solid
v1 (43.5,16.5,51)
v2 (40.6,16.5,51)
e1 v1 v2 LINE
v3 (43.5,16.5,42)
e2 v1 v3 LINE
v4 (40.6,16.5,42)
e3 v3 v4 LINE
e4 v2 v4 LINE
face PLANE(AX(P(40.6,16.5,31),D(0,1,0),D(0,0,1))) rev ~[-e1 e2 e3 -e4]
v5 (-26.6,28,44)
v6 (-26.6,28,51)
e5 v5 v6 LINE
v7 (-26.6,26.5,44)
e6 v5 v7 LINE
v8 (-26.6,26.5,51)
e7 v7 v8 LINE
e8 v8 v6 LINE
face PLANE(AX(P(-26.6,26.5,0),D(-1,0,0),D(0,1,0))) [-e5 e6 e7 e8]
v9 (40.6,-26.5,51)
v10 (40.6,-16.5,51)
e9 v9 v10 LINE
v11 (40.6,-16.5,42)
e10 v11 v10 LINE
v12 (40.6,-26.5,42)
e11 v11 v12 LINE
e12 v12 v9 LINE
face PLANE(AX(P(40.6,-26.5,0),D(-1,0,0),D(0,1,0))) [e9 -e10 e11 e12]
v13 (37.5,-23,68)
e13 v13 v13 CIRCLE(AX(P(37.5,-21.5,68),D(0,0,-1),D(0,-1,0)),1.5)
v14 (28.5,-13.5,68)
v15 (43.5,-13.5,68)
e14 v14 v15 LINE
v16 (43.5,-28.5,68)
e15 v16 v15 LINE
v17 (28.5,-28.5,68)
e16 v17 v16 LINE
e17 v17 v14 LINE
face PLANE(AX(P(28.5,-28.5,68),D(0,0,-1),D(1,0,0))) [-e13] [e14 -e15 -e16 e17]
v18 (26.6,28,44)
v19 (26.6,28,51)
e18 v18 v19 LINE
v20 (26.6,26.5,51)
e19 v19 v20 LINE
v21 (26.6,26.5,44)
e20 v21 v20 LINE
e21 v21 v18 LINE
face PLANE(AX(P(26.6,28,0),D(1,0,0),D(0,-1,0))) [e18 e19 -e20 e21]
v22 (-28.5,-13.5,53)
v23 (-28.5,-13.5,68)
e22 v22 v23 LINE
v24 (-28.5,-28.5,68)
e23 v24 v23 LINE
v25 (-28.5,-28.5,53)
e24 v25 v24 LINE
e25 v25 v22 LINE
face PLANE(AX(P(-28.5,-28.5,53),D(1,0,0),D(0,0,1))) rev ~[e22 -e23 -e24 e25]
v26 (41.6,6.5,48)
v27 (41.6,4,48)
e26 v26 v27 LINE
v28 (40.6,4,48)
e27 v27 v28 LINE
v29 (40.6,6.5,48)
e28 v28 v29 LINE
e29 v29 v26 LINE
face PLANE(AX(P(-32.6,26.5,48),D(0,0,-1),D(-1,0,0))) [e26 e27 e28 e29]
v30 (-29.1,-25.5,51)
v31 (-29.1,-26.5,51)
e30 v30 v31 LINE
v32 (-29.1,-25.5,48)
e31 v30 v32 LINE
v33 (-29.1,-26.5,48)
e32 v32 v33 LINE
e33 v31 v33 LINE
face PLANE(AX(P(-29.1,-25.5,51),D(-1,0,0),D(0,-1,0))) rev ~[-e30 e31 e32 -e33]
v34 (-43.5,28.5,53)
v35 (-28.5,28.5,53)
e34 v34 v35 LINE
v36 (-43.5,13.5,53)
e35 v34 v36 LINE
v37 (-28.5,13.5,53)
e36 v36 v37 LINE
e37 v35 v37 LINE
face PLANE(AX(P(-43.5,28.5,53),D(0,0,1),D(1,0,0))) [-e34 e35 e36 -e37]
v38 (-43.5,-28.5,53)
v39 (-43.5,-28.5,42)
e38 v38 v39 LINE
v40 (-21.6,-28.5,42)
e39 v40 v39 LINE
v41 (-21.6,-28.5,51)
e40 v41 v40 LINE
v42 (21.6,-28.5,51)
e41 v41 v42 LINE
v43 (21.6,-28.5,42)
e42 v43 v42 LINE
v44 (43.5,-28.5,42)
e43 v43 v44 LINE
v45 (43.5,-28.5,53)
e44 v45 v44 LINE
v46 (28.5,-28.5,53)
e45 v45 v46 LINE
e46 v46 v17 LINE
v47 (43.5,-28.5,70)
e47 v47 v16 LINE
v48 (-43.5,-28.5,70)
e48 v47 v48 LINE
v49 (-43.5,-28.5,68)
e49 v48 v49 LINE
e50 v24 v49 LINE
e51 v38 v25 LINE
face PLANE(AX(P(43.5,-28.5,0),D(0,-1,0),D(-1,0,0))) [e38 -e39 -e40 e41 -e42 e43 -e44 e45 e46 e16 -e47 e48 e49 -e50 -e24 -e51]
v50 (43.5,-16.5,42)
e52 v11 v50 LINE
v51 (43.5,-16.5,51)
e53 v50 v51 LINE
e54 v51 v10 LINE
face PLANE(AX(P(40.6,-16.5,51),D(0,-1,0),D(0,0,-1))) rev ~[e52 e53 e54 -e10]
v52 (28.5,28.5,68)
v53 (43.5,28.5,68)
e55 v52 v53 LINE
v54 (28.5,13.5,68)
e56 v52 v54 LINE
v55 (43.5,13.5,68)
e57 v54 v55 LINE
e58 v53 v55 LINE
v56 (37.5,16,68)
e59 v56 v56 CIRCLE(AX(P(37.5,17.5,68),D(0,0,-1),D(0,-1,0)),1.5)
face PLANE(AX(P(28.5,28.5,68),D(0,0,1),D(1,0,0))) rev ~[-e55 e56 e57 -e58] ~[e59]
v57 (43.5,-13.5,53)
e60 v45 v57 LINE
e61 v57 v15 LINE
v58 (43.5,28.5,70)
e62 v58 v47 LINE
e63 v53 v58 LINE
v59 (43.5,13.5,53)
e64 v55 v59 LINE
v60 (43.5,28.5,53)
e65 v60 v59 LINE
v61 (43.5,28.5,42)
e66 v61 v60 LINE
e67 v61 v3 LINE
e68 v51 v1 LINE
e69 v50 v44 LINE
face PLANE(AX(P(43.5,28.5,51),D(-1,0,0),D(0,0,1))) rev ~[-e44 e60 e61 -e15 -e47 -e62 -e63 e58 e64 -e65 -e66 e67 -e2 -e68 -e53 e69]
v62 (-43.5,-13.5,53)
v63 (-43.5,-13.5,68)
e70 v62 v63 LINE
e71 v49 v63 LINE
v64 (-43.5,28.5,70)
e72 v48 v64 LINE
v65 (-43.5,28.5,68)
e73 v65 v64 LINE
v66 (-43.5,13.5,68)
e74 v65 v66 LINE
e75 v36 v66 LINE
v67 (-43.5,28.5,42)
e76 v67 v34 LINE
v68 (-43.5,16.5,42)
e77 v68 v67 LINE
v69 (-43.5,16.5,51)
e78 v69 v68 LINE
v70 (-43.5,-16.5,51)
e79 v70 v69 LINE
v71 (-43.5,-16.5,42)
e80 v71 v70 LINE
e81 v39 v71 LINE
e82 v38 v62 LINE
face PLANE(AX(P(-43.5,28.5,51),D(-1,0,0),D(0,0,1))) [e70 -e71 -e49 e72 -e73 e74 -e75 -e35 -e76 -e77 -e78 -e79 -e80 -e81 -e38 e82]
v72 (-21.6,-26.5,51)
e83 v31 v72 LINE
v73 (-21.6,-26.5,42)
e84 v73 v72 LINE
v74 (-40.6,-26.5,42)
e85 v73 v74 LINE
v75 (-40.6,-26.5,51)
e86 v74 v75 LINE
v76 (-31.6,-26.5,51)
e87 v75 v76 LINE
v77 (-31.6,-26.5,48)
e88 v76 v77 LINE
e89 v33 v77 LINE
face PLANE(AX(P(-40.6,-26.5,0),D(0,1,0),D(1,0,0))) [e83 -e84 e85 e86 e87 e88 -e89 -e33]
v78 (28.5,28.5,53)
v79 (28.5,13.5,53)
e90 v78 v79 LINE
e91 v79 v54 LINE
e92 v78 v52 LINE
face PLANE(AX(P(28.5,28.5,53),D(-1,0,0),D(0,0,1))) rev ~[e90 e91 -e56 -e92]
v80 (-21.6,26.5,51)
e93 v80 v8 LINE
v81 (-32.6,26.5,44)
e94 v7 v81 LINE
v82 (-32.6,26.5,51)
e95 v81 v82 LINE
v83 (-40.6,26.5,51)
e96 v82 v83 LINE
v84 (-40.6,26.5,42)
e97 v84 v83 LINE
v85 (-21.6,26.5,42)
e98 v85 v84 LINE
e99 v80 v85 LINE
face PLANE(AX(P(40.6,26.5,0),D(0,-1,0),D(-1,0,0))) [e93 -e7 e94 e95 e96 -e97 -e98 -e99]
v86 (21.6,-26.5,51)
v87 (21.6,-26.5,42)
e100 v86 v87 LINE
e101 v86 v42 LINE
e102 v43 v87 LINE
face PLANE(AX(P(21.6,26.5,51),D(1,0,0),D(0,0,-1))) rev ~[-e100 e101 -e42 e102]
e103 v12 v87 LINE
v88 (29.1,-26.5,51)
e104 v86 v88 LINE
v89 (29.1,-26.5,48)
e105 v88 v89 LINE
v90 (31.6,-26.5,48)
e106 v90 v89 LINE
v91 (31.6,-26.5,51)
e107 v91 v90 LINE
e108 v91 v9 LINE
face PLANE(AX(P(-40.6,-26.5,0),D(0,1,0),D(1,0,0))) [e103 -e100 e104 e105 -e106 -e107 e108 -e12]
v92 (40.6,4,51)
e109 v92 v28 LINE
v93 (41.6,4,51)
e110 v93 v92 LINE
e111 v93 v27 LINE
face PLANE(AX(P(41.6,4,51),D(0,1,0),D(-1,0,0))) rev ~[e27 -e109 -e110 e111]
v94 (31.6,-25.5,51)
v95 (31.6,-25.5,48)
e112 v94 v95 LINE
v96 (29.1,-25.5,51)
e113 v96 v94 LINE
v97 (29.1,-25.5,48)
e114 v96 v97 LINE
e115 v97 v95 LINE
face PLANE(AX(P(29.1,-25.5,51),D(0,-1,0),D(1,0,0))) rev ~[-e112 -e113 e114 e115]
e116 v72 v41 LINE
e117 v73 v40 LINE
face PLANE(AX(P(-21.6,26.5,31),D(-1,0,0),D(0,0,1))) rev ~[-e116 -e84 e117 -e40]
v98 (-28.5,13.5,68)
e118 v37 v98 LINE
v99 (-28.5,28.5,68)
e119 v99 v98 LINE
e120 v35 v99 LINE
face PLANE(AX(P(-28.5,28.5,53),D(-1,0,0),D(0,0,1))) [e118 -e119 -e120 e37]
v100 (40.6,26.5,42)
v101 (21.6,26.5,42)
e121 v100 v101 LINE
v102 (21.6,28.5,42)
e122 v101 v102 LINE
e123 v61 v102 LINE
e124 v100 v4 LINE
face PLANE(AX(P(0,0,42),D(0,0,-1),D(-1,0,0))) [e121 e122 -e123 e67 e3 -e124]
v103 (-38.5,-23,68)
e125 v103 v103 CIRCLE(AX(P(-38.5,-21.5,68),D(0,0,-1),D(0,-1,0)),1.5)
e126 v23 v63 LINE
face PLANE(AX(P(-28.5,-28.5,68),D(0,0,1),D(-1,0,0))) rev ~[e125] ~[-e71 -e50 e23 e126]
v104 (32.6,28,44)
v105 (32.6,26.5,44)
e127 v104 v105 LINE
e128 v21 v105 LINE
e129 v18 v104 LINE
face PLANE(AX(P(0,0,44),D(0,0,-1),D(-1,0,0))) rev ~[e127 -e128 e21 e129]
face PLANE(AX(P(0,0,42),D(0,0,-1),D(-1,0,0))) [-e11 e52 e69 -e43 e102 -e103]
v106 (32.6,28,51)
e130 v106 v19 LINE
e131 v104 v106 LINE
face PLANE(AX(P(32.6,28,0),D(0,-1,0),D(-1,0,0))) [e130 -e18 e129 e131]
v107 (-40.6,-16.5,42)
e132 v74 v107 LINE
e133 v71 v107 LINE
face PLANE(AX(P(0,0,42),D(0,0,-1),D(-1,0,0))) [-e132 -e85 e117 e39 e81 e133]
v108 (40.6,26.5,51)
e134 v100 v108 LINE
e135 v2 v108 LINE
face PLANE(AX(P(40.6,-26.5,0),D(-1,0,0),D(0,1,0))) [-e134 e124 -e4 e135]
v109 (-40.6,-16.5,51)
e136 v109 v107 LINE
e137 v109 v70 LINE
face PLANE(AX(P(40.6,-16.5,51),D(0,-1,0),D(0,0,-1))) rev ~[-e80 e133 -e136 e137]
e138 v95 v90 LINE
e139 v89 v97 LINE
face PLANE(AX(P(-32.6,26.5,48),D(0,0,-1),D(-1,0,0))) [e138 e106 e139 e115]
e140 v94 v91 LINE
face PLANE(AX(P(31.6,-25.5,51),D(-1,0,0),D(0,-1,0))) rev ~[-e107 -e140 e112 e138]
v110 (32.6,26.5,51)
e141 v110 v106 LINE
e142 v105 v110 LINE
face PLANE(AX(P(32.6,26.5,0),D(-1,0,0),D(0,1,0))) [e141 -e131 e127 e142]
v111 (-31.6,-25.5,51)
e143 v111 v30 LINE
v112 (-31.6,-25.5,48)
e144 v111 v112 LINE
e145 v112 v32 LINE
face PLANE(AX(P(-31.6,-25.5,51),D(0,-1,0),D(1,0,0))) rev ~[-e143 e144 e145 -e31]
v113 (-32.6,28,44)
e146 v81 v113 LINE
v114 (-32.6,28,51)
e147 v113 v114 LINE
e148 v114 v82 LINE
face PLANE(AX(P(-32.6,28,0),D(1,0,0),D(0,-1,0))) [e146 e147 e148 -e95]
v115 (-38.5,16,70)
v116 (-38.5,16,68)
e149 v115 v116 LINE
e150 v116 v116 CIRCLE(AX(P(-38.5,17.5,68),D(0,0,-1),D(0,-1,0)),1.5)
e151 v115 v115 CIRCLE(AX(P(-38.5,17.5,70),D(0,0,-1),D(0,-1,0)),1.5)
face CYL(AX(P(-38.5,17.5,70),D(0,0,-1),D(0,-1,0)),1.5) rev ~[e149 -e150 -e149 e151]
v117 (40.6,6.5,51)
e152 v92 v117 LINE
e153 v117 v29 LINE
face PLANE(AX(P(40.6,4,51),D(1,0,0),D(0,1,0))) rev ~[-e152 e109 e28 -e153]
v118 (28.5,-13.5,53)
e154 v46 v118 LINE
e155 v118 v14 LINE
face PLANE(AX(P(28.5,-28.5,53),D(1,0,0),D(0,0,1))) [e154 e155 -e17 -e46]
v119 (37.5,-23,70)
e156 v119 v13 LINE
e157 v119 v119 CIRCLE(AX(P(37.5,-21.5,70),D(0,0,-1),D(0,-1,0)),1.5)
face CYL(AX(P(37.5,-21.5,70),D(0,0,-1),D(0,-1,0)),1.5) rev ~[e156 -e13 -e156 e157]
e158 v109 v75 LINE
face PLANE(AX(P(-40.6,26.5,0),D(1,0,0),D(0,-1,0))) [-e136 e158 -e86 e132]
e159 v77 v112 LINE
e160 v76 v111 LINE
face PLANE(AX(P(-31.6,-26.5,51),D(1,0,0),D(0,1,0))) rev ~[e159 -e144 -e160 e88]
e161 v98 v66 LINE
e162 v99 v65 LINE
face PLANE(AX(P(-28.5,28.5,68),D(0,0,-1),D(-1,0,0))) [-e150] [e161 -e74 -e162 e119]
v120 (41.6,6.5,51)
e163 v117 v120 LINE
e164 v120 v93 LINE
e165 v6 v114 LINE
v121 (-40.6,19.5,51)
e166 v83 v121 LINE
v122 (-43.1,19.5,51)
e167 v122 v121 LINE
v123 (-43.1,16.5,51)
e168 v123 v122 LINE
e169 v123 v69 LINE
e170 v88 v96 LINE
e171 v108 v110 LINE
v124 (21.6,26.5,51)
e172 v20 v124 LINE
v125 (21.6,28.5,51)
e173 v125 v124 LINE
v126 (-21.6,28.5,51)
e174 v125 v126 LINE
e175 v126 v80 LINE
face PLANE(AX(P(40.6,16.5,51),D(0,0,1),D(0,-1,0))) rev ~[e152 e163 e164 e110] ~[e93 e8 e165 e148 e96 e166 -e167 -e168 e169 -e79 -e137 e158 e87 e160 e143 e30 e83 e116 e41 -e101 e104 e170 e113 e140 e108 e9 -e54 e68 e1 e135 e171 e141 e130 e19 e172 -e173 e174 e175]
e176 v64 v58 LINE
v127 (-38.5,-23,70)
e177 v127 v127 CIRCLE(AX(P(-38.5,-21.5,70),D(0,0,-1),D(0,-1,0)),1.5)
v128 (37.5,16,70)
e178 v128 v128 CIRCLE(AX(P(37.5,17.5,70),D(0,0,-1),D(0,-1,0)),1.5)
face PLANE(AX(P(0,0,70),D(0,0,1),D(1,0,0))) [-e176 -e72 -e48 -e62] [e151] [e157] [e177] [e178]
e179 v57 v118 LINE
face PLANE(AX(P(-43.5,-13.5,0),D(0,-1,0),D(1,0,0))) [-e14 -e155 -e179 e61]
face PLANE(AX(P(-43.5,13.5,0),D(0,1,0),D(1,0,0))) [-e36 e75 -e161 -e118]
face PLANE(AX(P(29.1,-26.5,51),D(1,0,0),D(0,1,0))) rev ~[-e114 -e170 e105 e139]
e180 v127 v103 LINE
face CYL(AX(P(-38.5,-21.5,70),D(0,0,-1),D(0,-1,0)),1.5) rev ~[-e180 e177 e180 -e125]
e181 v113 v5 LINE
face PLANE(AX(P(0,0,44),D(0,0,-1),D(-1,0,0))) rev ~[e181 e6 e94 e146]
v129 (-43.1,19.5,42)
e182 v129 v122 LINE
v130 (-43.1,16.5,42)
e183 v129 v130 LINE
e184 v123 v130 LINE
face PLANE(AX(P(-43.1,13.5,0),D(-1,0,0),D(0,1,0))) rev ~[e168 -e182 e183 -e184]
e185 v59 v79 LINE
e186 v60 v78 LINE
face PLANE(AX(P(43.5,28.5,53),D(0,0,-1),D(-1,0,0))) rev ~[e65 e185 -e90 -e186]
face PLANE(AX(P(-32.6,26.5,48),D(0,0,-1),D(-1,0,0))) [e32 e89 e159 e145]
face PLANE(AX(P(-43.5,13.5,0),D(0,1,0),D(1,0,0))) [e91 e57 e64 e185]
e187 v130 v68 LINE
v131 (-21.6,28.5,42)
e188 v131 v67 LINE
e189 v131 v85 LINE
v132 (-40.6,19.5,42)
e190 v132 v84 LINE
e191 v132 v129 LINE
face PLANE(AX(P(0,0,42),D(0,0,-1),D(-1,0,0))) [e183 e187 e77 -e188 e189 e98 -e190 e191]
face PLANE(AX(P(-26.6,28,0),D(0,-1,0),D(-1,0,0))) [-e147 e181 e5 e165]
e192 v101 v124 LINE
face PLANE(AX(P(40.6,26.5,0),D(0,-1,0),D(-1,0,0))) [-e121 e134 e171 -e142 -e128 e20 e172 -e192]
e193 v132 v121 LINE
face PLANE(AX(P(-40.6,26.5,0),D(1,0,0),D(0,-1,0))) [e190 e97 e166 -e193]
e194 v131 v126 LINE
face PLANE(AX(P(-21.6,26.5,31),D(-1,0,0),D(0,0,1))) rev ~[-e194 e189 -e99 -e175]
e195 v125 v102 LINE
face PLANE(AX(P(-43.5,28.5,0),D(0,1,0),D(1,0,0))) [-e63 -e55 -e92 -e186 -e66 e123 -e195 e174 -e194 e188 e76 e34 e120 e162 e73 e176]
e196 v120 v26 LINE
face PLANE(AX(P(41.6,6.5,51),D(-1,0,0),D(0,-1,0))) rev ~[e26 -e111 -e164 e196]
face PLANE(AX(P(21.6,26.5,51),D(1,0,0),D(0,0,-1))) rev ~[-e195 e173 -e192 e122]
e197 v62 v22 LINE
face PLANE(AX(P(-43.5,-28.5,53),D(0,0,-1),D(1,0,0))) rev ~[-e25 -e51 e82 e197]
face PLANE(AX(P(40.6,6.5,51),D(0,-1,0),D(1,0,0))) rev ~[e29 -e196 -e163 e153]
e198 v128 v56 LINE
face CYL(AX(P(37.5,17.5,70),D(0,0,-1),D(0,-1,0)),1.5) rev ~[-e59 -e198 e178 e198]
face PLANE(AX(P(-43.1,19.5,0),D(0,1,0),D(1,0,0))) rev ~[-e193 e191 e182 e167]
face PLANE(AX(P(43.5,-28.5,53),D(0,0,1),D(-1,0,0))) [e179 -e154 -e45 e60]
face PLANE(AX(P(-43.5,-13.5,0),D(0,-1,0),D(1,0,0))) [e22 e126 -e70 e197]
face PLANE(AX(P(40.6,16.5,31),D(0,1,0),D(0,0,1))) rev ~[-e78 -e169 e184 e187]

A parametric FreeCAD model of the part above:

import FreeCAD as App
import Part
import Sketcher
from FreeCAD import Vector
Q = App.Units.Quantity

doc = App.newDocument("Part")
body = doc.addObject("PartDesign::Body", "Body")

sketch1 = body.newObject("Sketcher::SketchObject", "Sketch")
sketch1.AttachmentSupport = (doc.getObject("XY_Plane"), [""])
sketch1.MapMode = "FlatFace"
sketch1.addGeometry(Part.LineSegment(Vector(-44, -28, 0), Vector(44, -28, 0)), False)
sketch1.addGeometry(Part.LineSegment(Vector(44, -28, 0), Vector(44, 28, 0)), False)
sketch1.addGeometry(Part.LineSegment(Vector(44, 28, 0), Vector(-44, 28, 0)), False)
sketch1.addGeometry(Part.LineSegment(Vector(-44, 28, 0), Vector(-44, -28, 0)), False)
sketch1.addConstraint(Sketcher.Constraint("Coincident", 0, 2, 1, 1))
sketch1.addConstraint(Sketcher.Constraint("Coincident", 1, 2, 2, 1))
sketch1.addConstraint(Sketcher.Constraint("Coincident", 2, 2, 3, 1))
sketch1.addConstraint(Sketcher.Constraint("Coincident", 3, 2, 0, 1))
sketch1.addConstraint(Sketcher.Constraint("Horizontal", 0))
sketch1.addConstraint(Sketcher.Constraint("Vertical", 1))
sketch1.addConstraint(Sketcher.Constraint("Horizontal", 2))
sketch1.addConstraint(Sketcher.Constraint("Vertical", 3))
sketch1.addConstraint(Sketcher.Constraint("Symmetric", 0, 2, 2, 2, -1, 1))
sketch1.addConstraint(Sketcher.Constraint("DistanceX", 0, 1, 0, 2, Q("87 mm")))
sketch1.addConstraint(Sketcher.Constraint("DistanceY", 1, 1, 1, 2, Q("57 mm")))
pad1 = body.newObject("PartDesign::Pad", "Pad")
pad1.Profile = sketch1
pad1.Length = 70

sketch2 = body.newObject("Sketcher::SketchObject", "Sketch001")
sketch2.AttachmentSupport = (doc.getObject("XY_Plane"), [""])
sketch2.MapMode = "FlatFace"
sketch2.addGeometry(Part.LineSegment(Vector(41, -26, 0), Vector(-41, -26, 0)), False)
sketch2.addGeometry(Part.LineSegment(Vector(-41, -26, 0), Vector(-41, 26, 0)), False)
sketch2.addGeometry(Part.LineSegment(Vector(-41, 26, 0), Vector(41, 26, 0)), False)
sketch2.addGeometry(Part.LineSegment(Vector(41, 26, 0), Vector(41, -26, 0)), False)
sketch2.addConstraint(Sketcher.Constraint("Coincident", 0, 2, 1, 1))
sketch2.addConstraint(Sketcher.Constraint("Coincident", 1, 2, 2, 1))
sketch2.addConstraint(Sketcher.Constraint("Coincident", 2, 2, 3, 1))
sketch2.addConstraint(Sketcher.Constraint("Coincident", 3, 2, 0, 1))
sketch2.addConstraint(Sketcher.Constraint("Horizontal", 0))
sketch2.addConstraint(Sketcher.Constraint("Vertical", 1))
sketch2.addConstraint(Sketcher.Constraint("Horizontal", 2))
sketch2.addConstraint(Sketcher.Constraint("Vertical", 3))
sketch2.addConstraint(Sketcher.Constraint("Symmetric", 0, 2, 2, 2, -1, 1))
sketch2.addConstraint(Sketcher.Constraint("DistanceY", 1, 1, 1, 2, Q("53 mm")))
sketch2.addConstraint(Sketcher.Constraint("DistanceX", 0, 2, 0, 1, Q("81.2 mm")))
pocket1 = body.newObject("PartDesign::Pocket", "Pocket")
pocket1.Profile = sketch2
pocket1.Length = 56
pocket1.Reversed = True

sketch3 = body.newObject("Sketcher::SketchObject", "Sketch002")
sketch3.AttachmentSupport = (doc.getObject("XZ_Plane"), [""])
sketch3.MapMode = "FlatFace"
sketch3.AttachmentOffset = App.Placement(Vector(0, 0, -28.5), App.Rotation())
sketch3.addGeometry(Part.LineSegment(Vector(43.5, 51, 0), Vector(-43.5, 51, 0)), False)
sketch3.addGeometry(Part.LineSegment(Vector(-43.5, 51, 0), Vector(-43.5, 55, 0)), False)
sketch3.addGeometry(Part.LineSegment(Vector(-43.5, 55, 0), Vector(43.5, 55, 0)), False)
sketch3.addGeometry(Part.LineSegment(Vector(43.5, 55, 0), Vector(43.5, 51, 0)), False)
sketch3.addConstraint(Sketcher.Constraint("Coincident", 0, 2, 1, 1))
sketch3.addConstraint(Sketcher.Constraint("Coincident", 1, 2, 2, 1))
sketch3.addConstraint(Sketcher.Constraint("Coincident", 2, 2, 3, 1))
sketch3.addConstraint(Sketcher.Constraint("Coincident", 3, 2, 0, 1))
sketch3.addConstraint(Sketcher.Constraint("Horizontal", 0))
sketch3.addConstraint(Sketcher.Constraint("Vertical", 1))
sketch3.addConstraint(Sketcher.Constraint("Horizontal", 2))
sketch3.addConstraint(Sketcher.Constraint("Vertical", 3))
sketch3.addConstraint(Sketcher.Constraint("DistanceY", 1, 1, 1, 2, Q("4 mm")))
sketch3.addConstraint(Sketcher.Constraint("DistanceX", 0, 2, 0, 1, Q("87 mm")))
sketch3.addConstraint(Sketcher.Constraint("DistanceY", -1, 1, 0, 2, Q("51 mm")))
sketch3.addConstraint(Sketcher.Constraint("DistanceX", 0, 2, -1, 1, Q("43.5 mm")))
pad2 = body.newObject("PartDesign::Pad", "Pad001")
pad2.Profile = sketch3
pad2.Length = 55

sketch4 = body.newObject("Sketcher::SketchObject", "Sketch003")
sketch4.AttachmentSupport = (doc.getObject("XY_Plane"), [""])
sketch4.MapMode = "FlatFace"
sketch4.addGeometry(Part.LineSegment(Vector(32.6, 26.5, 0), Vector(26.6, 26.5, 0)), False)
sketch4.addGeometry(Part.LineSegment(Vector(26.6, 26.5, 0), Vector(26.6, 28, 0)), False)
sketch4.addGeometry(Part.LineSegment(Vector(26.6, 28, 0), Vector(32.6, 28, 0)), False)
sketch4.addGeometry(Part.LineSegment(Vector(32.6, 28, 0), Vector(32.6, 26.5, 0)), False)
sketch4.addGeometry(Part.LineSegment(Vector(-26.6, 26.5, 0), Vector(-32.6, 26.5, 0)), False)
sketch4.addGeometry(Part.LineSegment(Vector(-32.6, 26.5, 0), Vector(-32.6, 28, 0)), False)
sketch4.addGeometry(Part.LineSegment(Vector(-32.6, 28, 0), Vector(-26.6, 28, 0)), False)
sketch4.addGeometry(Part.LineSegment(Vector(-26.6, 28, 0), Vector(-26.6, 26.5, 0)), False)
sketch4.addGeometry(Part.LineSegment(Vector(-40.6, 19.5, 0), Vector(-40.6, 13.5, 0)), False)
sketch4.addGeometry(Part.LineSegment(Vector(-40.6, 13.5, 0), Vector(-43.1, 13.5, 0)), False)
sketch4.addGeometry(Part.LineSegment(Vector(-43.1, 13.5, 0), Vector(-43.1, 19.5, 0)), False)
sketch4.addGeometry(Part.LineSegment(Vector(-43.1, 19.5, 0), Vector(-40.6, 19.5, 0)), False)
sketch4.addConstraint(Sketcher.Constraint("Coincident", 0, 2, 1, 1))
sketch4.addConstraint(Sketcher.Constraint("Coincident", 1, 2, 2, 1))
sketch4.addConstraint(Sketcher.Constraint("Coincident", 2, 2, 3, 1))
sketch4.addConstraint(Sketcher.Constraint("Coincident", 3, 2, 0, 1))
sketch4.addConstraint(Sketcher.Constraint("Coincident", 4, 2, 5, 1))
sketch4.addConstraint(Sketcher.Constraint("Coincident", 5, 2, 6, 1))
sketch4.addConstraint(Sketcher.Constraint("Coincident", 6, 2, 7, 1))
sketch4.addConstraint(Sketcher.Constraint("Coincident", 7, 2, 4, 1))
sketch4.addConstraint(Sketcher.Constraint("Coincident", 8, 2, 9, 1))
sketch4.addConstraint(Sketcher.Constraint("Coincident", 9, 2, 10, 1))
sketch4.addConstraint(Sketcher.Constraint("Coincident", 10, 2, 11, 1))
sketch4.addConstraint(Sketcher.Constraint("Coincident", 11, 2, 8, 1))
sketch4.addConstraint(Sketcher.Constraint("Horizontal", 0))
sketch4.addConstraint(Sketcher.Constraint("Vertical", 1))
sketch4.addConstraint(Sketcher.Constraint("Horizontal", 2))
sketch4.addConstraint(Sketcher.Constraint("Vertical", 3))
sketch4.addConstraint(Sketcher.Constraint("Horizontal", 4))
sketch4.addConstraint(Sketcher.Constraint("Vertical", 5))
sketch4.addConstraint(Sketcher.Constraint("Horizontal", 6))
sketch4.addConstraint(Sketcher.Constraint("Vertical", 7))
sketch4.addConstraint(Sketcher.Constraint("Vertical", 8))
sketch4.addConstraint(Sketcher.Constraint("Horizontal", 9))
sketch4.addConstraint(Sketcher.Constraint("Vertical", 10))
sketch4.addConstraint(Sketcher.Constraint("Horizontal", 11))
sketch4.addConstraint(Sketcher.Constraint("Symmetric", 3, 2, 4, 2, -2))
sketch4.addConstraint(Sketcher.Constraint("Symmetric", 1, 2, 6, 2, -2))
sketch4.addConstraint(Sketcher.Constraint("Equal", 6, 8))
sketch4.addConstraint(Sketcher.Constraint("DistanceX", 0, 2, 0, 1, Q("6 mm")))
sketch4.addConstraint(Sketcher.Constraint("DistanceX", 9, 2, 9, 1, Q("2.5 mm")))
sketch4.addConstraint(Sketcher.Constraint("DistanceY", 1, 1, 1, 2, Q("1.5 mm")))
sketch4.addConstraint(Sketcher.Constraint("DistanceX", 8, 2, 4, 2, Q("8 mm")))
sketch4.addConstraint(Sketcher.Constraint("DistanceY", 8, 2, 4, 2, Q("13 mm")))
sketch4.addConstraint(Sketcher.Constraint("DistanceY", -1, 1, 1, 2, Q("28 mm")))
sketch4.addConstraint(Sketcher.Constraint("DistanceX", -1, 1, 0, 2, Q("26.6 mm")))
pocket2 = body.newObject("PartDesign::Pocket", "Pocket001")
pocket2.Profile = sketch4
pocket2.Length = 51
pocket2.Reversed = True

sketch5 = body.newObject("Sketcher::SketchObject", "Sketch004")
sketch5.AttachmentSupport = (doc.getObject("YZ_Plane"), [""])
sketch5.MapMode = "FlatFace"
sketch5.AttachmentOffset = App.Placement(Vector(0, 0, 40.6), App.Rotation())
sketch5.addGeometry(Part.LineSegment(Vector(-16, 31, 0), Vector(-16, 51, 0)), False)
sketch5.addGeometry(Part.LineSegment(Vector(-16, 51, 0), Vector(16, 51, 0)), False)
sketch5.addGeometry(Part.LineSegment(Vector(16, 51, 0), Vector(16, 31, 0)), False)
sketch5.addGeometry(Part.LineSegment(Vector(16, 31, 0), Vector(-16, 31, 0)), False)
sketch5.addConstraint(Sketcher.Constraint("Coincident", 0, 2, 1, 1))
sketch5.addConstraint(Sketcher.Constraint("Coincident", 1, 2, 2, 1))
sketch5.addConstraint(Sketcher.Constraint("Coincident", 2, 2, 3, 1))
sketch5.addConstraint(Sketcher.Constraint("Coincident", 3, 2, 0, 1))
sketch5.addConstraint(Sketcher.Constraint("Vertical", 0))
sketch5.addConstraint(Sketcher.Constraint("Horizontal", 1))
sketch5.addConstraint(Sketcher.Constraint("Vertical", 2))
sketch5.addConstraint(Sketcher.Constraint("Horizontal", 3))
sketch5.addConstraint(Sketcher.Constraint("DistanceY", 0, 1, 0, 2, Q("20 mm")))
sketch5.addConstraint(Sketcher.Constraint("DistanceX", 1, 1, 1, 2, Q("33 mm")))
sketch5.addConstraint(Sketcher.Constraint("DistanceY", -1, 1, 0, 2, Q("51 mm")))
sketch5.addConstraint(Sketcher.Constraint("DistanceX", 0, 2, -1, 1, Q("16.5 mm")))
pocket3 = body.newObject("PartDesign::Pocket", "Pocket002")
pocket3.Profile = sketch5
pocket3.Type = "ThroughAll"
pocket3.Midplane = True

sketch6 = body.newObject("Sketcher::SketchObject", "Sketch005")
sketch6.AttachmentSupport = (doc.getObject("XZ_Plane"), [""])
sketch6.MapMode = "FlatFace"
sketch6.AttachmentOffset = App.Placement(Vector(0, 0, -26.5), App.Rotation())
sketch6.addGeometry(Part.LineSegment(Vector(22, 31, 0), Vector(22, 51, 0)), False)
sketch6.addGeometry(Part.LineSegment(Vector(22, 51, 0), Vector(-22, 51, 0)), False)
sketch6.addGeometry(Part.LineSegment(Vector(-22, 51, 0), Vector(-22, 31, 0)), False)
sketch6.addGeometry(Part.LineSegment(Vector(-22, 31, 0), Vector(22, 31, 0)), False)
sketch6.addConstraint(Sketcher.Constraint("Coincident", 0, 2, 1, 1))
sketch6.addConstraint(Sketcher.Constraint("Coincident", 1, 2, 2, 1))
sketch6.addConstraint(Sketcher.Constraint("Coincident", 2, 2, 3, 1))
sketch6.addConstraint(Sketcher.Constraint("Coincident", 3, 2, 0, 1))
sketch6.addConstraint(Sketcher.Constraint("Vertical", 0))
sketch6.addConstraint(Sketcher.Constraint("Horizontal", 1))
sketch6.addConstraint(Sketcher.Constraint("Vertical", 2))
sketch6.addConstraint(Sketcher.Constraint("Horizontal", 3))
sketch6.addConstraint(Sketcher.Constraint("DistanceY", 0, 1, 0, 2, Q("20 mm")))
sketch6.addConstraint(Sketcher.Constraint("DistanceX", 1, 2, 1, 1, Q("43.2 mm")))
sketch6.addConstraint(Sketcher.Constraint("DistanceY", -1, 1, 0, 2, Q("51 mm")))
sketch6.addConstraint(Sketcher.Constraint("DistanceX", -1, 1, 0, 2, Q("21.6 mm")))
pocket4 = body.newObject("PartDesign::Pocket", "Pocket003")
pocket4.Profile = sketch6
pocket4.Type = "ThroughAll"
pocket4.Midplane = True

sketch7 = body.newObject("Sketcher::SketchObject", "Sketch006")
sketch7.AttachmentSupport = (doc.getObject("XY_Plane"), [""])
sketch7.MapMode = "FlatFace"
sketch7.AttachmentOffset = App.Placement(Vector(0, 0, 51), App.Rotation())
sketch7.addGeometry(Part.LineSegment(Vector(31.6, -25.5, 0), Vector(31.6, -26.5, 0)), False)
sketch7.addGeometry(Part.LineSegment(Vector(31.6, -26.5, 0), Vector(29.1, -26.5, 0)), False)
sketch7.addGeometry(Part.LineSegment(Vector(29.1, -26.5, 0), Vector(29.1, -25.5, 0)), False)
sketch7.addGeometry(Part.LineSegment(Vector(29.1, -25.5, 0), Vector(31.6, -25.5, 0)), False)
sketch7.addGeometry(Part.LineSegment(Vector(-29.1, -25.5, 0), Vector(-29.1, -26.5, 0)), False)
sketch7.addGeometry(Part.LineSegment(Vector(-29.1, -26.5, 0), Vector(-31.6, -26.5, 0)), False)
sketch7.addGeometry(Part.LineSegment(Vector(-31.6, -26.5, 0), Vector(-31.6, -25.5, 0)), False)
sketch7.addGeometry(Part.LineSegment(Vector(-31.6, -25.5, 0), Vector(-29.1, -25.5, 0)), False)
sketch7.addGeometry(Part.LineSegment(Vector(41.6, 6.5, 0), Vector(41.6, 4, 0)), False)
sketch7.addGeometry(Part.LineSegment(Vector(41.6, 4, 0), Vector(40.6, 4, 0)), False)
sketch7.addGeometry(Part.LineSegment(Vector(40.6, 4, 0), Vector(40.6, 6.5, 0)), False)
sketch7.addGeometry(Part.LineSegment(Vector(40.6, 6.5, 0), Vector(41.6, 6.5, 0)), False)
sketch7.addConstraint(Sketcher.Constraint("Coincident", 0, 2, 1, 1))
sketch7.addConstraint(Sketcher.Constraint("Coincident", 1, 2, 2, 1))
sketch7.addConstraint(Sketcher.Constraint("Coincident", 2, 2, 3, 1))
sketch7.addConstraint(Sketcher.Constraint("Coincident", 3, 2, 0, 1))
sketch7.addConstraint(Sketcher.Constraint("Coincident", 4, 2, 5, 1))
sketch7.addConstraint(Sketcher.Constraint("Coincident", 5, 2, 6, 1))
sketch7.addConstraint(Sketcher.Constraint("Coincident", 6, 2, 7, 1))
sketch7.addConstraint(Sketcher.Constraint("Coincident", 7, 2, 4, 1))
sketch7.addConstraint(Sketcher.Constraint("Coincident", 8, 2, 9, 1))
sketch7.addConstraint(Sketcher.Constraint("Coincident", 9, 2, 10, 1))
sketch7.addConstraint(Sketcher.Constraint("Coincident", 10, 2, 11, 1))
sketch7.addConstraint(Sketcher.Constraint("Coincident", 11, 2, 8, 1))
sketch7.addConstraint(Sketcher.Constraint("Vertical", 0))
sketch7.addConstraint(Sketcher.Constraint("Horizontal", 1))
sketch7.addConstraint(Sketcher.Constraint("Vertical", 2))
sketch7.addConstraint(Sketcher.Constraint("Horizontal", 3))
sketch7.addConstraint(Sketcher.Constraint("Vertical", 4))
sketch7.addConstraint(Sketcher.Constraint("Horizontal", 5))
sketch7.addConstraint(Sketcher.Constraint("Vertical", 6))
sketch7.addConstraint(Sketcher.Constraint("Horizontal", 7))
sketch7.addConstraint(Sketcher.Constraint("Vertical", 8))
sketch7.addConstraint(Sketcher.Constraint("Horizontal", 9))
sketch7.addConstraint(Sketcher.Constraint("Vertical", 10))
sketch7.addConstraint(Sketcher.Constraint("Horizontal", 11))
sketch7.addConstraint(Sketcher.Constraint("Symmetric", 1, 2, 4, 2, -2))
sketch7.addConstraint(Sketcher.Constraint("Symmetric", 3, 2, 6, 2, -2))
sketch7.addConstraint(Sketcher.Constraint("Equal", 11, 0))
sketch7.addConstraint(Sketcher.Constraint("Equal", 7, 8))
sketch7.addConstraint(Sketcher.Constraint("DistanceX", 9, 2, 9, 1, Q("1 mm")))
sketch7.addConstraint(Sketcher.Constraint("DistanceX", 1, 2, 1, 1, Q("2.5 mm")))
sketch7.addConstraint(Sketcher.Constraint("DistanceX", 3, 2, 9, 2, Q("9 mm")))
sketch7.addConstraint(Sketcher.Constraint("DistanceY", -1, 1, 8, 2, Q("4 mm")))
sketch7.addConstraint(Sketcher.Constraint("DistanceY", 3, 2, 10, 2, Q("32 mm")))
sketch7.addConstraint(Sketcher.Constraint("DistanceX", -1, 1, 0, 2, Q("31.6 mm")))
pad3 = body.newObject("PartDesign::Pad", "Pad002")
pad3.Profile = sketch7
pad3.Length = 3
pad3.Reversed = True

sketch8 = body.newObject("Sketcher::SketchObject", "Sketch007")
sketch8.AttachmentSupport = (doc.getObject("XY_Plane"), [""])
sketch8.MapMode = "FlatFace"
sketch8.AttachmentOffset = App.Placement(Vector(0, 0, 70), App.Rotation())
sketch8.addGeometry(Part.LineSegment(Vector(-44, -28, 0), Vector(44, -28, 0)), False)
sketch8.addGeometry(Part.LineSegment(Vector(44, -28, 0), Vector(44, 28, 0)), False)
sketch8.addGeometry(Part.LineSegment(Vector(44, 28, 0), Vector(-44, 28, 0)), False)
sketch8.addGeometry(Part.LineSegment(Vector(-44, 28, 0), Vector(-44, -28, 0)), False)
sketch8.addConstraint(Sketcher.Constraint("Coincident", 0, 2, 1, 1))
sketch8.addConstraint(Sketcher.Constraint("Coincident", 1, 2, 2, 1))
sketch8.addConstraint(Sketcher.Constraint("Coincident", 2, 2, 3, 1))
sketch8.addConstraint(Sketcher.Constraint("Coincident", 3, 2, 0, 1))
sketch8.addConstraint(Sketcher.Constraint("Horizontal", 0))
sketch8.addConstraint(Sketcher.Constraint("Vertical", 1))
sketch8.addConstraint(Sketcher.Constraint("Horizontal", 2))
sketch8.addConstraint(Sketcher.Constraint("Vertical", 3))
sketch8.addConstraint(Sketcher.Constraint("Symmetric", 0, 2, 2, 2, -1, 1))
sketch8.addConstraint(Sketcher.Constraint("DistanceX", 0, 1, 0, 2, Q("87 mm")))
sketch8.addConstraint(Sketcher.Constraint("DistanceY", 1, 1, 1, 2, Q("57 mm")))
pad4 = body.newObject("PartDesign::Pad", "Pad003")
pad4.Profile = sketch8
pad4.Length = 15
pad4.Reversed = True

sketch9 = body.newObject("Sketcher::SketchObject", "Sketch008")
sketch9.AttachmentSupport = (doc.getObject("XZ_Plane"), [""])
sketch9.MapMode = "FlatFace"
sketch9.AttachmentOffset = App.Placement(Vector(0, 0, 28.5), App.Rotation())
sketch9.addGeometry(Part.LineSegment(Vector(28, 53, 0), Vector(44, 53, 0)), False)
sketch9.addGeometry(Part.LineSegment(Vector(44, 53, 0), Vector(44, 68, 0)), False)
sketch9.addGeometry(Part.LineSegment(Vector(44, 68, 0), Vector(28, 68, 0)), False)
sketch9.addGeometry(Part.LineSegment(Vector(28, 68, 0), Vector(28, 53, 0)), False)
sketch9.addGeometry(Part.LineSegment(Vector(-28, 68, 0), Vector(-44, 68, 0)), False)
sketch9.addGeometry(Part.LineSegment(Vector(-44, 68, 0), Vector(-44, 53, 0)), False)
sketch9.addGeometry(Part.LineSegment(Vector(-44, 53, 0), Vector(-28, 53, 0)), False)
sketch9.addGeometry(Part.LineSegment(Vector(-28, 53, 0), Vector(-28, 68, 0)), False)
sketch9.addConstraint(Sketcher.Constraint("Coincident", 0, 2, 1, 1))
sketch9.addConstraint(Sketcher.Constraint("Coincident", 1, 2, 2, 1))
sketch9.addConstraint(Sketcher.Constraint("Coincident", 2, 2, 3, 1))
sketch9.addConstraint(Sketcher.Constraint("Coincident", 3, 2, 0, 1))
sketch9.addConstraint(Sketcher.Constraint("Coincident", 4, 2, 5, 1))
sketch9.addConstraint(Sketcher.Constraint("Coincident", 5, 2, 6, 1))
sketch9.addConstraint(Sketcher.Constraint("Coincident", 6, 2, 7, 1))
sketch9.addConstraint(Sketcher.Constraint("Coincident", 7, 2, 4, 1))
sketch9.addConstraint(Sketcher.Constraint("Horizontal", 0))
sketch9.addConstraint(Sketcher.Constraint("Vertical", 1))
sketch9.addConstraint(Sketcher.Constraint("Horizontal", 2))
sketch9.addConstraint(Sketcher.Constraint("Vertical", 3))
sketch9.addConstraint(Sketcher.Constraint("Horizontal", 4))
sketch9.addConstraint(Sketcher.Constraint("Vertical", 5))
sketch9.addConstraint(Sketcher.Constraint("Horizontal", 6))
sketch9.addConstraint(Sketcher.Constraint("Vertical", 7))
sketch9.addConstraint(Sketcher.Constraint("Symmetric", 1, 2, 4, 2, -2))
sketch9.addConstraint(Sketcher.Constraint("Symmetric", 3, 2, 6, 2, -2))
sketch9.addConstraint(Sketcher.Constraint("Equal", 6, 1))
sketch9.addConstraint(Sketcher.Constraint("DistanceX", 0, 1, 0, 2, Q("15 mm")))
sketch9.addConstraint(Sketcher.Constraint("DistanceY", -1, 1, 0, 2, Q("53 mm")))
sketch9.addConstraint(Sketcher.Constraint("DistanceX", 4, 2, 2, 2, Q("72 mm")))
pocket5 = body.newObject("PartDesign::Pocket", "Pocket004")
pocket5.Profile = sketch9
pocket5.Length = 15

sketch10 = body.newObject("Sketcher::SketchObject", "Sketch009")
sketch10.AttachmentSupport = (doc.getObject("XZ_Plane"), [""])
sketch10.MapMode = "FlatFace"
sketch10.AttachmentOffset = App.Placement(Vector(0, 0, -28.5), App.Rotation())
sketch10.addGeometry(Part.LineSegment(Vector(-28, 53, 0), Vector(-44, 53, 0)), False)
sketch10.addGeometry(Part.LineSegment(Vector(-44, 53, 0), Vector(-44, 68, 0)), False)
sketch10.addGeometry(Part.LineSegment(Vector(-44, 68, 0), Vector(-28, 68, 0)), False)
sketch10.addGeometry(Part.LineSegment(Vector(-28, 68, 0), Vector(-28, 53, 0)), False)
sketch10.addGeometry(Part.LineSegment(Vector(44, 68, 0), Vector(44, 53, 0)), False)
sketch10.addGeometry(Part.LineSegment(Vector(44, 53, 0), Vector(28, 53, 0)), False)
sketch10.addGeometry(Part.LineSegment(Vector(28, 53, 0), Vector(28, 68, 0)), False)
sketch10.addGeometry(Part.LineSegment(Vector(28, 68, 0), Vector(44, 68, 0)), False)
sketch10.addConstraint(Sketcher.Constraint("Coincident", 0, 2, 1, 1))
sketch10.addConstraint(Sketcher.Constraint("Coincident", 1, 2, 2, 1))
sketch10.addConstraint(Sketcher.Constraint("Coincident", 2, 2, 3, 1))
sketch10.addConstraint(Sketcher.Constraint("Coincident", 3, 2, 0, 1))
sketch10.addConstraint(Sketcher.Constraint("Coincident", 4, 2, 5, 1))
sketch10.addConstraint(Sketcher.Constraint("Coincident", 5, 2, 6, 1))
sketch10.addConstraint(Sketcher.Constraint("Coincident", 6, 2, 7, 1))
sketch10.addConstraint(Sketcher.Constraint("Coincident", 7, 2, 4, 1))
sketch10.addConstraint(Sketcher.Constraint("Horizontal", 0))
sketch10.addConstraint(Sketcher.Constraint("Vertical", 1))
sketch10.addConstraint(Sketcher.Constraint("Horizontal", 2))
sketch10.addConstraint(Sketcher.Constraint("Vertical", 3))
sketch10.addConstraint(Sketcher.Constraint("Vertical", 4))
sketch10.addConstraint(Sketcher.Constraint("Horizontal", 5))
sketch10.addConstraint(Sketcher.Constraint("Vertical", 6))
sketch10.addConstraint(Sketcher.Constraint("Horizontal", 7))
sketch10.addConstraint(Sketcher.Constraint("Symmetric", 0, 2, 4, 2, -2))
sketch10.addConstraint(Sketcher.Constraint("Symmetric", 2, 2, 6, 2, -2))
sketch10.addConstraint(Sketcher.Constraint("Equal", 7, 1))
sketch10.addConstraint(Sketcher.Constraint("DistanceX", 0, 2, 0, 1, Q("15 mm")))
sketch10.addConstraint(Sketcher.Constraint("DistanceY", -1, 1, 0, 2, Q("53 mm")))
sketch10.addConstraint(Sketcher.Constraint("DistanceX", 3, 2, 4, 2, Q("72 mm")))
pocket6 = body.newObject("PartDesign::Pocket", "Pocket005")
pocket6.Profile = sketch10
pocket6.Length = 15
pocket6.Reversed = True

sketch11 = body.newObject("Sketcher::SketchObject", "Sketch010")
sketch11.AttachmentSupport = (doc.getObject("XY_Plane"), [""])
sketch11.MapMode = "FlatFace"
sketch11.addGeometry(Part.LineSegment(Vector(-44, 28, 0), Vector(44, 28, 0)), False)
sketch11.addGeometry(Part.LineSegment(Vector(44, 28, 0), Vector(44, -28, 0)), False)
sketch11.addGeometry(Part.LineSegment(Vector(44, -28, 0), Vector(-44, -28, 0)), False)
sketch11.addGeometry(Part.LineSegment(Vector(-44, -28, 0), Vector(-44, 28, 0)), False)
sketch11.addConstraint(Sketcher.Constraint("Coincident", 0, 2, 1, 1))
sketch11.addConstraint(Sketcher.Constraint("Coincident", 1, 2, 2, 1))
sketch11.addConstraint(Sketcher.Constraint("Coincident", 2, 2, 3, 1))
sketch11.addConstraint(Sketcher.Constraint("Coincident", 3, 2, 0, 1))
sketch11.addConstraint(Sketcher.Constraint("Horizontal", 0))
sketch11.addConstraint(Sketcher.Constraint("Vertical", 1))
sketch11.addConstraint(Sketcher.Constraint("Horizontal", 2))
sketch11.addConstraint(Sketcher.Constraint("Vertical", 3))
sketch11.addConstraint(Sketcher.Constraint("Symmetric", 0, 2, 2, 2, -1, 1))
sketch11.addConstraint(Sketcher.Constraint("DistanceX", 0, 1, 0, 2, Q("87 mm")))
sketch11.addConstraint(Sketcher.Constraint("DistanceY", 1, 2, 1, 1, Q("57 mm")))
pocket7 = body.newObject("PartDesign::Pocket", "Pocket006")
pocket7.Profile = sketch11
pocket7.Length = 42
pocket7.Reversed = True

sketch12 = body.newObject("Sketcher::SketchObject", "Sketch011")
sketch12.AttachmentSupport = (doc.getObject("XY_Plane"), [""])
sketch12.MapMode = "FlatFace"
sketch12.AttachmentOffset = App.Placement(Vector(0, 0, 42), App.Rotation())
sketch12.addGeometry(Part.LineSegment(Vector(32.6, 28.5, 0), Vector(32.6, 26.5, 0)), False)
sketch12.addGeometry(Part.LineSegment(Vector(32.6, 26.5, 0), Vector(26.6, 26.5, 0)), False)
sketch12.addGeometry(Part.LineSegment(Vector(26.6, 26.5, 0), Vector(26.6, 28.5, 0)), False)
sketch12.addGeometry(Part.LineSegment(Vector(26.6, 28.5, 0), Vector(32.6, 28.5, 0)), False)
sketch12.addGeometry(Part.LineSegment(Vector(-26.6, 28.5, 0), Vector(-26.6, 26.5, 0)), False)
sketch12.addGeometry(Part.LineSegment(Vector(-26.6, 26.5, 0), Vector(-32.6, 26.5, 0)), False)
sketch12.addGeometry(Part.LineSegment(Vector(-32.6, 26.5, 0), Vector(-32.6, 28.5, 0)), False)
sketch12.addGeometry(Part.LineSegment(Vector(-32.6, 28.5, 0), Vector(-26.6, 28.5, 0)), False)
sketch12.addConstraint(Sketcher.Constraint("Coincident", 0, 2, 1, 1))
sketch12.addConstraint(Sketcher.Constraint("Coincident", 1, 2, 2, 1))
sketch12.addConstraint(Sketcher.Constraint("Coincident", 2, 2, 3, 1))
sketch12.addConstraint(Sketcher.Constraint("Coincident", 3, 2, 0, 1))
sketch12.addConstraint(Sketcher.Constraint("Coincident", 4, 2, 5, 1))
sketch12.addConstraint(Sketcher.Constraint("Coincident", 5, 2, 6, 1))
sketch12.addConstraint(Sketcher.Constraint("Coincident", 6, 2, 7, 1))
sketch12.addConstraint(Sketcher.Constraint("Coincident", 7, 2, 4, 1))
sketch12.addConstraint(Sketcher.Constraint("Vertical", 0))
sketch12.addConstraint(Sketcher.Constraint("Horizontal", 1))
sketch12.addConstraint(Sketcher.Constraint("Vertical", 2))
sketch12.addConstraint(Sketcher.Constraint("Horizontal", 3))
sketch12.addConstraint(Sketcher.Constraint("Vertical", 4))
sketch12.addConstraint(Sketcher.Constraint("Horizontal", 5))
sketch12.addConstraint(Sketcher.Constraint("Vertical", 6))
sketch12.addConstraint(Sketcher.Constraint("Horizontal", 7))
sketch12.addConstraint(Sketcher.Constraint("Symmetric", 1, 2, 4, 2, -2))
sketch12.addConstraint(Sketcher.Constraint("Symmetric", 3, 2, 6, 2, -2))
sketch12.addConstraint(Sketcher.Constraint("DistanceX", 1, 2, 1, 1, Q("6 mm")))
sketch12.addConstraint(Sketcher.Constraint("DistanceY", 0, 2, 0, 1, Q("2 mm")))
sketch12.addConstraint(Sketcher.Constraint("DistanceX", -1, 1, 0, 2, Q("32.6 mm")))
sketch12.addConstraint(Sketcher.Constraint("DistanceY", -1, 1, 0, 2, Q("26.5 mm")))
pad5 = body.newObject("PartDesign::Pad", "Pad004")
pad5.Profile = sketch12
pad5.Length = 2

sketch13 = body.newObject("Sketcher::SketchObject", "Sketch012")
sketch13.AttachmentSupport = (doc.getObject("XY_Plane"), [""])
sketch13.MapMode = "FlatFace"
sketch13.AttachmentOffset = App.Placement(Vector(0, 0, 70), App.Rotation())
sketch13.addGeometry(Part.Circle(Vector(-38.5, -21.5, 0), Vector(0, 0, 1), 1.5), False)
sketch13.addGeometry(Part.Circle(Vector(37.5, -21.5, 0), Vector(0, 0, 1), 1.5), False)
sketch13.addGeometry(Part.Circle(Vector(37.5, 17.5, 0), Vector(0, 0, 1), 1.5), False)
sketch13.addGeometry(Part.Circle(Vector(-38.5, 17.5, 0), Vector(0, 0, 1), 1.5), False)
sketch13.addConstraint(Sketcher.Constraint("Equal", 0, 1))
sketch13.addConstraint(Sketcher.Constraint("Equal", 1, 2))
sketch13.addConstraint(Sketcher.Constraint("Equal", 2, 3))
sketch13.addConstraint(Sketcher.Constraint("Horizontal", 0, 3, 1, 3))
sketch13.addConstraint(Sketcher.Constraint("Horizontal", 2, 3, 3, 3))
sketch13.addConstraint(Sketcher.Constraint("Vertical", 1, 3, 2, 3))
sketch13.addConstraint(Sketcher.Constraint("Vertical", 0, 3, 3, 3))
sketch13.addConstraint(Sketcher.Constraint("Diameter", 0, Q("3 mm")))
sketch13.addConstraint(Sketcher.Constraint("DistanceX", 0, 3, 1, 3, Q("76 mm")))
sketch13.addConstraint(Sketcher.Constraint("DistanceY", 1, 3, 2, 3, Q("39 mm")))
sketch13.addConstraint(Sketcher.Constraint("DistanceX", 0, 3, -1, 1, Q("38.5 mm")))
sketch13.addConstraint(Sketcher.Constraint("DistanceY", 0, 3, -1, 1, Q("21.5 mm")))
doc.recompute()
hole = body.newObject("PartDesign::Hole", "Hole")
hole.Profile = sketch13
hole.ThreadType = "None"
hole.Diameter = 3
hole.DepthType = "Dimension"
hole.Depth = 4
hole.DrillPoint = "Angled"
hole.DrillPointAngle = 118

doc.recompute()
